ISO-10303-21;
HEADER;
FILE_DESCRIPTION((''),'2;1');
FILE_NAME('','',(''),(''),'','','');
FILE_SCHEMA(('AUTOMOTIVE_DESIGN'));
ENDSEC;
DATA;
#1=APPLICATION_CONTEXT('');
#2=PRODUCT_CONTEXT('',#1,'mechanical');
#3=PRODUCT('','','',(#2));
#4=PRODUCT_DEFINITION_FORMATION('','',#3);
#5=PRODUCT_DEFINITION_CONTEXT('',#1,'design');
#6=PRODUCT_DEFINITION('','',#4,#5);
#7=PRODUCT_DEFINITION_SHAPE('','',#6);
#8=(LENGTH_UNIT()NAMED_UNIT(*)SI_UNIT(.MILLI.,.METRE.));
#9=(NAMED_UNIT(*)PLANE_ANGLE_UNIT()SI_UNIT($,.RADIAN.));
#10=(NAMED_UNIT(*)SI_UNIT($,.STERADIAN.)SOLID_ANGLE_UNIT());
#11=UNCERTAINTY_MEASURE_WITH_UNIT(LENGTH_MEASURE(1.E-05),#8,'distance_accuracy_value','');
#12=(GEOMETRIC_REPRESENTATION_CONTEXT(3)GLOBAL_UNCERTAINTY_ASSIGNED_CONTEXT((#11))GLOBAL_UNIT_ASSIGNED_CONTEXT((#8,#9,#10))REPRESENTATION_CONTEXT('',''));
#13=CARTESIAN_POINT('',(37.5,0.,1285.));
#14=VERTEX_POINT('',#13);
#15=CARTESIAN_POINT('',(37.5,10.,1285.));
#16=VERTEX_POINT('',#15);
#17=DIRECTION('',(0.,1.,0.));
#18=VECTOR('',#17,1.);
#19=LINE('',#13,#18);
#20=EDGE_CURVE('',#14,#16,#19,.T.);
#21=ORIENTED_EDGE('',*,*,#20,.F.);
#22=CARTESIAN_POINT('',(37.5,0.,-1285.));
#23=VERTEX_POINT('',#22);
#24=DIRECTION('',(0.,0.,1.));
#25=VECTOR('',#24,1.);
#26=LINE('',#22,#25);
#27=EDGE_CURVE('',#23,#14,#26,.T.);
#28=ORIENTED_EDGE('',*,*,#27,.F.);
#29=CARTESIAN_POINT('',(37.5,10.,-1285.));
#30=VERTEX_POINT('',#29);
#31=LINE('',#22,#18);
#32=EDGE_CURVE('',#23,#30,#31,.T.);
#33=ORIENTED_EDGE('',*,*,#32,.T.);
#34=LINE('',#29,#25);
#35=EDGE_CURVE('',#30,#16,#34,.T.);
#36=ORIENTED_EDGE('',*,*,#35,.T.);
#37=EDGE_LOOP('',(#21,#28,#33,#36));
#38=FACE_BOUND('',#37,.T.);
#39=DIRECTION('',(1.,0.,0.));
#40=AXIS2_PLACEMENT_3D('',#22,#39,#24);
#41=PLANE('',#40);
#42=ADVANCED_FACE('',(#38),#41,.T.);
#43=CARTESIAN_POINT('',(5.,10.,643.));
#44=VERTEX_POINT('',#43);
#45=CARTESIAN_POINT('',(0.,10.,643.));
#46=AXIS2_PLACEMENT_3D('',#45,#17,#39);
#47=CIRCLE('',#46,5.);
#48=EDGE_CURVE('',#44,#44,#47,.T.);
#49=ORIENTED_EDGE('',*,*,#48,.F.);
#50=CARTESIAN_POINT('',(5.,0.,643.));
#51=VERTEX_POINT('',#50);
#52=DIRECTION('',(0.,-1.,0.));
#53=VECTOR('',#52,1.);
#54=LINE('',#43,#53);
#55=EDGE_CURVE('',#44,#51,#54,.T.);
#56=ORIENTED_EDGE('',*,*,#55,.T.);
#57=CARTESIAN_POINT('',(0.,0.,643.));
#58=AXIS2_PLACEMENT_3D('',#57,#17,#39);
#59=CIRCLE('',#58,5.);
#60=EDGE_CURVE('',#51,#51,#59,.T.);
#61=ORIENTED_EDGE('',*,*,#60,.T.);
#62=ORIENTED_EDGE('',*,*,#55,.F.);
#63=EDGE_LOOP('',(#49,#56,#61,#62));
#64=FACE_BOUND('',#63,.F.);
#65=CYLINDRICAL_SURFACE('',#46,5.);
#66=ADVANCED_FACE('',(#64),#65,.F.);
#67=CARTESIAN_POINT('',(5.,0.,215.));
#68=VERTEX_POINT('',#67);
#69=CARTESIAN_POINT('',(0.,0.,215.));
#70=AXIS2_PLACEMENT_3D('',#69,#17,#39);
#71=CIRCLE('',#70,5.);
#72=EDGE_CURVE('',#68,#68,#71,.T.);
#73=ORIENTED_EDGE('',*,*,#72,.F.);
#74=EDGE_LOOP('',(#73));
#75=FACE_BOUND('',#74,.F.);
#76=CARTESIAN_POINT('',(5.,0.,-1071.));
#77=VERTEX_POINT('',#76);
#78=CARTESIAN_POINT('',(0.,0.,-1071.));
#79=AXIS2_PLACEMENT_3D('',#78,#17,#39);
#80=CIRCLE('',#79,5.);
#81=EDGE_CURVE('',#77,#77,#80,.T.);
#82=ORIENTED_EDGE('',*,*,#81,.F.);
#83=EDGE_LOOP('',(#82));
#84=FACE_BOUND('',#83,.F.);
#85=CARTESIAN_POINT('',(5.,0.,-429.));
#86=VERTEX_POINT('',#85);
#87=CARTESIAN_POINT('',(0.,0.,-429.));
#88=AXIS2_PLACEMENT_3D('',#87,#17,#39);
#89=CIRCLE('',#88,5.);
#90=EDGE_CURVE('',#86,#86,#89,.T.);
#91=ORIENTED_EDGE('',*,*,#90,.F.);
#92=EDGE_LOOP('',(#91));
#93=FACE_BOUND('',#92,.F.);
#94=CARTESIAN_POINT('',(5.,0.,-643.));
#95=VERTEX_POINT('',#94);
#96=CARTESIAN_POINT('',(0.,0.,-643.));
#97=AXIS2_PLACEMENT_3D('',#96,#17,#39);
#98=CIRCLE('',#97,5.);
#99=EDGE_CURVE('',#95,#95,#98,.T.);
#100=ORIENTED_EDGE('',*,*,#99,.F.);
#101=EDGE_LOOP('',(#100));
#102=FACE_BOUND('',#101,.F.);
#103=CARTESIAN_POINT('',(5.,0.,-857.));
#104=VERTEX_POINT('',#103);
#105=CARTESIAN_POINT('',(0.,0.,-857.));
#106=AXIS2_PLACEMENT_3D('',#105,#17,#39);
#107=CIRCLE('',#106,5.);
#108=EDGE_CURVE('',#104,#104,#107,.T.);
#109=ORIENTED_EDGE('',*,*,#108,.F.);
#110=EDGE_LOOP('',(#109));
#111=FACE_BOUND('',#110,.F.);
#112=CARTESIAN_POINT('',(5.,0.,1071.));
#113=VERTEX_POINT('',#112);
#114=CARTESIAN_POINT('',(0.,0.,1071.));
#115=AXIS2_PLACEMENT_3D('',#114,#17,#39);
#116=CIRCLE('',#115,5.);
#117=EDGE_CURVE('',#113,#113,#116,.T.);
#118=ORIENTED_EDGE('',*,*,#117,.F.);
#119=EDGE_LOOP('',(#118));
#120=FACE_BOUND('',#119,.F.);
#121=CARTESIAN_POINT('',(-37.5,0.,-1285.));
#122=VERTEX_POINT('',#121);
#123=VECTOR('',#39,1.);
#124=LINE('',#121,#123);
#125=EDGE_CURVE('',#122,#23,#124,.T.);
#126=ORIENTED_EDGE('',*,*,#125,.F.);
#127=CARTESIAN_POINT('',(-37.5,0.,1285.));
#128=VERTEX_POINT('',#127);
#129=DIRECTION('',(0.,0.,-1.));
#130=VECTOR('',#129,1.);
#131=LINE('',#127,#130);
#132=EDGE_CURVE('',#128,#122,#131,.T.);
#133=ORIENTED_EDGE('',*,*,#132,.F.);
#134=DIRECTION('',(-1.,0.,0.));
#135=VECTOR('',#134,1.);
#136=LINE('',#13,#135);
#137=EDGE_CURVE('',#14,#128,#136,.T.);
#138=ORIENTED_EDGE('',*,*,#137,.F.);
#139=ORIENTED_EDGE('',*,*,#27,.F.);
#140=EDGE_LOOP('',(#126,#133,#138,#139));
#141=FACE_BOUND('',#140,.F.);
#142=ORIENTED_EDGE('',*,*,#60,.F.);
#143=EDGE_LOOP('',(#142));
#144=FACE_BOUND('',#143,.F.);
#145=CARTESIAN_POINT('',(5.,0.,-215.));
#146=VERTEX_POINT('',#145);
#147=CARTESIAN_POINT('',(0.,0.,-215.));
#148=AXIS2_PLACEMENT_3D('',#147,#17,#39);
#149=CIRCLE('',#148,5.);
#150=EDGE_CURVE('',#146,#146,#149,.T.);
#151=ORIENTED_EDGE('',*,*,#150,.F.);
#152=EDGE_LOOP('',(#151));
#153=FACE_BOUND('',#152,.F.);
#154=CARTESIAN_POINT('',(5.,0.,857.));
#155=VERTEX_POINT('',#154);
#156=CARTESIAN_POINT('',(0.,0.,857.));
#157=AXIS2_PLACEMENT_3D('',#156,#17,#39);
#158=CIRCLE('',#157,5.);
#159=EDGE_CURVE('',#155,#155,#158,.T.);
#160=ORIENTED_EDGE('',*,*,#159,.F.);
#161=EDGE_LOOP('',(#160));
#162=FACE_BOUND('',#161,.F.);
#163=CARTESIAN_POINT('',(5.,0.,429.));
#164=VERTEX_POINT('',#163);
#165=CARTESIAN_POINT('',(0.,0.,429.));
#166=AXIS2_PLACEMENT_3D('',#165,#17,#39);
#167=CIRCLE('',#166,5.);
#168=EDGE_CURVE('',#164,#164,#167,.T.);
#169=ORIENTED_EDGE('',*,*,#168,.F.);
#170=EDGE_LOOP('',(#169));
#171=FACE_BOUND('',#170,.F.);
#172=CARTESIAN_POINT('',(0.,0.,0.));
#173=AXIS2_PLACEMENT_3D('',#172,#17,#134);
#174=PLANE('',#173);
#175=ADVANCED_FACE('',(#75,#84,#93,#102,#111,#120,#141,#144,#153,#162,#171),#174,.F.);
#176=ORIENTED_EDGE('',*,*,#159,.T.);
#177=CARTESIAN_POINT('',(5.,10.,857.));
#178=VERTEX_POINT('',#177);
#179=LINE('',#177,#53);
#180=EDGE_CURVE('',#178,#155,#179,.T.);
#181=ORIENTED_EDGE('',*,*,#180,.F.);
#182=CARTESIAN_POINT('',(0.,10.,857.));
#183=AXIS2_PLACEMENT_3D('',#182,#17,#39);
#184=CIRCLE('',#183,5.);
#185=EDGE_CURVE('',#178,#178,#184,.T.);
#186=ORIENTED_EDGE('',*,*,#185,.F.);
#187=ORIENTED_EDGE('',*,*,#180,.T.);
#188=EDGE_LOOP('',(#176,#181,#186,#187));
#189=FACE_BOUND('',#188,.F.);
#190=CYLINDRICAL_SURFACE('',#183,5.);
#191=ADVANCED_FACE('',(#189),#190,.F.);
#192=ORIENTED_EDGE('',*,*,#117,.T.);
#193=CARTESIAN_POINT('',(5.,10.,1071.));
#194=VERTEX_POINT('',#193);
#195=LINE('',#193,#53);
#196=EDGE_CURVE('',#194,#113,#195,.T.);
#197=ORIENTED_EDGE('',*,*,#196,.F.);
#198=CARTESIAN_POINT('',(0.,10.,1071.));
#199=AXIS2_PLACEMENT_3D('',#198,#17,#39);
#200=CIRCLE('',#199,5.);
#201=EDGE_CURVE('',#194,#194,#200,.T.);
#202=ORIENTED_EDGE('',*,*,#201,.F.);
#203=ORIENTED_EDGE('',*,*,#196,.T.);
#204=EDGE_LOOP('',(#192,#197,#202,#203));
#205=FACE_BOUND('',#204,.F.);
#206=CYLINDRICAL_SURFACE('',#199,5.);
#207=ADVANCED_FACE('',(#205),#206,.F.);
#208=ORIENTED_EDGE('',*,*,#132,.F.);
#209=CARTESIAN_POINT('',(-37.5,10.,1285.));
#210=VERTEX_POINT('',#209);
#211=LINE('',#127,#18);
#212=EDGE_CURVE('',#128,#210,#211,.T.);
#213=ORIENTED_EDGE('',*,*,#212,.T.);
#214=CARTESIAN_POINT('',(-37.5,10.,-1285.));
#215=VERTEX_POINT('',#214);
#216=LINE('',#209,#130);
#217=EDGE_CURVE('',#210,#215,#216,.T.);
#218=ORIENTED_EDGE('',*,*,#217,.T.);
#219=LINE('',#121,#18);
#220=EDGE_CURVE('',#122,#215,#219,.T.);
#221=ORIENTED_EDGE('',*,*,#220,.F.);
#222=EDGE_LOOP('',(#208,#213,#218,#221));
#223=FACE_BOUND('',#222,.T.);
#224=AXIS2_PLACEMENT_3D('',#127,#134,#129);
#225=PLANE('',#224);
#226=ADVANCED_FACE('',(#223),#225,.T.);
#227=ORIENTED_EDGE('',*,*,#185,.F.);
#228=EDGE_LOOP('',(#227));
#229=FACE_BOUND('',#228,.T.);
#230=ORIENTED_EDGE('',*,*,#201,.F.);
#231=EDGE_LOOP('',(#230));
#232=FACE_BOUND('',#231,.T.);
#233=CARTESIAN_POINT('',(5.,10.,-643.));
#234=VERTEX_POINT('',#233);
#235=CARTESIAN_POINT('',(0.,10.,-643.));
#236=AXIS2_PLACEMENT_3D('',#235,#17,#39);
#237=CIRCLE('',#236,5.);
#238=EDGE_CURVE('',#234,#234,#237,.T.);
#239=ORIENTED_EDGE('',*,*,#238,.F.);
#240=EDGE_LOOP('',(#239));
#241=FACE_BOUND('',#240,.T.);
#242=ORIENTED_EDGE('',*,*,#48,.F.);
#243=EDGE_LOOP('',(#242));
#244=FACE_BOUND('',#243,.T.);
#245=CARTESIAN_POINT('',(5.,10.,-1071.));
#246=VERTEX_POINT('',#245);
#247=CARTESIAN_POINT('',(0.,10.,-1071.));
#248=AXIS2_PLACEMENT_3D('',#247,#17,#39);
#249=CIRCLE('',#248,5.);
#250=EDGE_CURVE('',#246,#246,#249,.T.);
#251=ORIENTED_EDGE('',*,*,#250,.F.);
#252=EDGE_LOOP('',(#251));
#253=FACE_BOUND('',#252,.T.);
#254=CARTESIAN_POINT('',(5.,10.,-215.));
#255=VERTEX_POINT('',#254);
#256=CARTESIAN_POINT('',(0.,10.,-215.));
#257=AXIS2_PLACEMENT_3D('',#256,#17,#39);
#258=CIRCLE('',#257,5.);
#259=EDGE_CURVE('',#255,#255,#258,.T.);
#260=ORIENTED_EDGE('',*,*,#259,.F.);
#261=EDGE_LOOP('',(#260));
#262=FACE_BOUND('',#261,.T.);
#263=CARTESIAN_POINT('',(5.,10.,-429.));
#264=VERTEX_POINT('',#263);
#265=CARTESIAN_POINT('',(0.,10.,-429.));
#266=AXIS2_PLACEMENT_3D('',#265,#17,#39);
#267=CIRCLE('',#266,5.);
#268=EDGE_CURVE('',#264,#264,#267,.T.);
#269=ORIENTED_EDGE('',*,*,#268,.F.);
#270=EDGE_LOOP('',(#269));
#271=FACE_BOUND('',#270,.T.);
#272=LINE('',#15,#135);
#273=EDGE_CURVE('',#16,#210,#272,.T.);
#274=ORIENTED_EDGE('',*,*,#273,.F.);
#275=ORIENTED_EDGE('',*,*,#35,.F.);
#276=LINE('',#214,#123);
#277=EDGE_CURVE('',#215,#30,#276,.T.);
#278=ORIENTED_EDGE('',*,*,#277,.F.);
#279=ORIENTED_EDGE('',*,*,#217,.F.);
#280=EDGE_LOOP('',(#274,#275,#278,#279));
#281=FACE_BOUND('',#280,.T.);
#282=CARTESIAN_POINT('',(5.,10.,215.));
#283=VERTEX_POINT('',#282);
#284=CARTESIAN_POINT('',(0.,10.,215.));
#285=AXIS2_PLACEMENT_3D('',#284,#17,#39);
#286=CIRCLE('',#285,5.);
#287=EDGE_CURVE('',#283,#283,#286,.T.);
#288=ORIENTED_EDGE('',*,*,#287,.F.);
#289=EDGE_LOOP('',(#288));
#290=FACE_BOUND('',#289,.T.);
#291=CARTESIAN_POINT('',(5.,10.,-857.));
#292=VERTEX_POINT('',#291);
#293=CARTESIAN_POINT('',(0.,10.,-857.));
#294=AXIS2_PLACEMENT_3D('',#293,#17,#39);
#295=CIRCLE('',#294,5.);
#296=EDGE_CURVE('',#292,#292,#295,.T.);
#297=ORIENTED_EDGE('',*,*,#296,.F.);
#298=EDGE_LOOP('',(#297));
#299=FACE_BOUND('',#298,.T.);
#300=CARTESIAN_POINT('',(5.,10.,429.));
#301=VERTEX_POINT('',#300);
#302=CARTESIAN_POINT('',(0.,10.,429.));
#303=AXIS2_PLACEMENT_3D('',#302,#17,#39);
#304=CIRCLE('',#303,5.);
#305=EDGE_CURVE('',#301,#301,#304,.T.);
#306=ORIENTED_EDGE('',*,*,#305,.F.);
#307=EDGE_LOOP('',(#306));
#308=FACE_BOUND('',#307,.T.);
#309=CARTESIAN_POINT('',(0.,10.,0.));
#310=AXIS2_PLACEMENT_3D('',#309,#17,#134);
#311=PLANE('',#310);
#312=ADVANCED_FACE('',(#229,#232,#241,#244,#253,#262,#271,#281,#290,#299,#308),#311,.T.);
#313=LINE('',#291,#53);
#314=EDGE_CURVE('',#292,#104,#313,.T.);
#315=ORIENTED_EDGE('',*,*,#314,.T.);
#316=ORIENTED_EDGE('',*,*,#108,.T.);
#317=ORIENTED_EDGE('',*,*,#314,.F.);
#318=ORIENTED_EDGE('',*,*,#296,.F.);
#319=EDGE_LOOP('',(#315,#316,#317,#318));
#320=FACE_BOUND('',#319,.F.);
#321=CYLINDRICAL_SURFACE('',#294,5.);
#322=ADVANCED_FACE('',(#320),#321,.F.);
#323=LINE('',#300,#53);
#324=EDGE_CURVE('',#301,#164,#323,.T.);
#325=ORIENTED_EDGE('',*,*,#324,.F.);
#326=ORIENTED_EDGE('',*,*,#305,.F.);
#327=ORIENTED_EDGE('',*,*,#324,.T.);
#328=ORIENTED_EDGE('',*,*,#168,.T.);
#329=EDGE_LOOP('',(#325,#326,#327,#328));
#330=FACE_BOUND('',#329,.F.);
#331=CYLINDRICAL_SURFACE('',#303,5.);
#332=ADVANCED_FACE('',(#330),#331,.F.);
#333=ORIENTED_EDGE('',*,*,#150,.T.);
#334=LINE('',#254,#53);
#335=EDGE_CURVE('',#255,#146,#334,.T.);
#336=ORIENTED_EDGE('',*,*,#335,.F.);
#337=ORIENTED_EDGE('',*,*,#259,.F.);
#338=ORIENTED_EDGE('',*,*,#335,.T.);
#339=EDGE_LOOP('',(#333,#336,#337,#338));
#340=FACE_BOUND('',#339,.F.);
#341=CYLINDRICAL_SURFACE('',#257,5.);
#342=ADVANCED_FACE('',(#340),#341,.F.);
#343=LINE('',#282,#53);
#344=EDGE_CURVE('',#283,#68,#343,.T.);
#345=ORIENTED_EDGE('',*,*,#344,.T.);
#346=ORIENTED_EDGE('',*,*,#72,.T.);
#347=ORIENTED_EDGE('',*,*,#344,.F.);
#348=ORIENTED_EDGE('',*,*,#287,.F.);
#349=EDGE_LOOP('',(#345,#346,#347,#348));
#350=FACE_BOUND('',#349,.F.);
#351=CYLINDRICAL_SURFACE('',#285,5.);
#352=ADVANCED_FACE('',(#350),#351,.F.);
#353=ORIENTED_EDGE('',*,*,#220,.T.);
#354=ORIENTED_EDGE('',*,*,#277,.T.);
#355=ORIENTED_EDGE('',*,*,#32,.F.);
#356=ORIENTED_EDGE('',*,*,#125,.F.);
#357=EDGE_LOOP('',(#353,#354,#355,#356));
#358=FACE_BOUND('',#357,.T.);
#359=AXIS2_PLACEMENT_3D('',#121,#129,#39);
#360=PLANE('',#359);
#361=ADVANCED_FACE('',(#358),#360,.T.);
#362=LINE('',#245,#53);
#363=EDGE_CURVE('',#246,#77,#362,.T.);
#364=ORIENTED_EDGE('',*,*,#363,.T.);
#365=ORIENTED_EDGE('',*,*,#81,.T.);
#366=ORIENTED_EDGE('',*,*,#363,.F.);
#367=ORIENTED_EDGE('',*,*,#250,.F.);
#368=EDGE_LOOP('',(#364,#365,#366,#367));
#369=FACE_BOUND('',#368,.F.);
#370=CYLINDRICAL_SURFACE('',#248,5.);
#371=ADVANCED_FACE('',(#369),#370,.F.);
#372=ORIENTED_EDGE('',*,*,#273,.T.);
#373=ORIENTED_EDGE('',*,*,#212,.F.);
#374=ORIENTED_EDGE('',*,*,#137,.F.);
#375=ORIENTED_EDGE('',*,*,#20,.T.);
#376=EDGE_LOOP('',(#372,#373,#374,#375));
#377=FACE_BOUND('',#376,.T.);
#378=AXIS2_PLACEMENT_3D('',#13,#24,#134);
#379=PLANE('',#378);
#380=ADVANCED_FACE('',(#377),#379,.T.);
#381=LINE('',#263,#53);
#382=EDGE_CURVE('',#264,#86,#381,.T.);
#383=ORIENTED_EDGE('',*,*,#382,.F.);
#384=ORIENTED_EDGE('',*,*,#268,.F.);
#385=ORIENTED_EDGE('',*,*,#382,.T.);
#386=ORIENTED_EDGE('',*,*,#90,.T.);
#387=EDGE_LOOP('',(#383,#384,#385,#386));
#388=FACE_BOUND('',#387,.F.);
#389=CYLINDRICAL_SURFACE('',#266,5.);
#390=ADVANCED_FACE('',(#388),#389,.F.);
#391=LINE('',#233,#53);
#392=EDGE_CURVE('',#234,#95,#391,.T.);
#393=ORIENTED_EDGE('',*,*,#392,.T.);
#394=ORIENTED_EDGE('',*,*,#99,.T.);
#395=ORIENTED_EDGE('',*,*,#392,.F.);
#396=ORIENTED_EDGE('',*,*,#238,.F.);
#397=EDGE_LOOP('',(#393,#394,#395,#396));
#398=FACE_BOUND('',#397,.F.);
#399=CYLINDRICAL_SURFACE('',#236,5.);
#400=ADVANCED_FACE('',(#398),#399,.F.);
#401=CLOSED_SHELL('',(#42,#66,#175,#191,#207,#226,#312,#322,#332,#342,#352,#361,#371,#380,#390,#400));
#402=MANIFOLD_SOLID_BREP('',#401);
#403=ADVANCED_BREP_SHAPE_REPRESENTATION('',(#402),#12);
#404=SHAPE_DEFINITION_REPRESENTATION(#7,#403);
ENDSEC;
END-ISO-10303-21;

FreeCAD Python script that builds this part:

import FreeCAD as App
import Part
import Sketcher
Q = App.Units.Quantity

doc = App.newDocument("Part")
body = doc.addObject("PartDesign::Body", "Body")

# Sketch on XZ plane
sketch1 = body.newObject("Sketcher::SketchObject", "Sketch")
sketch1.AttachmentSupport = (doc.getObject("XZ_Plane"), [""])
sketch1.MapMode = "FlatFace"
sketch1.addGeometry(Part.LineSegment(App.Vector(38, 1285, 0), App.Vector(38, -1285, 0)), False)
sketch1.addGeometry(Part.LineSegment(App.Vector(38, -1285, 0), App.Vector(-38, -1285, 0)), False)
sketch1.addGeometry(Part.LineSegment(App.Vector(-38, -1285, 0), App.Vector(-38, 1285, 0)), False)
sketch1.addGeometry(Part.LineSegment(App.Vector(-38, 1285, 0), App.Vector(38, 1285, 0)), False)
sketch1.addConstraint(Sketcher.Constraint("Coincident", 0, 2, 1, 1))
sketch1.addConstraint(Sketcher.Constraint("Coincident", 1, 2, 2, 1))
sketch1.addConstraint(Sketcher.Constraint("Coincident", 2, 2, 3, 1))
sketch1.addConstraint(Sketcher.Constraint("Coincident", 3, 2, 0, 1))
sketch1.addConstraint(Sketcher.Constraint("Vertical", 0))
sketch1.addConstraint(Sketcher.Constraint("Horizontal", 1))
sketch1.addConstraint(Sketcher.Constraint("Vertical", 2))
sketch1.addConstraint(Sketcher.Constraint("Horizontal", 3))
sketch1.addConstraint(Sketcher.Constraint("Symmetric", 0, 2, 2, 2, -1, 1))
sketch1.addConstraint(Sketcher.Constraint("DistanceX", 1, 2, 1, 1, Q("75 mm")))
sketch1.addConstraint(Sketcher.Constraint("DistanceY", 0, 2, 0, 1, Q("2570 mm")))
pad1 = body.newObject("PartDesign::Pad", "Pad")
pad1.Profile = sketch1
pad1.Length = 10
pad1.Reversed = True

# Sketch on XZ plane
sketch2 = body.newObject("Sketcher::SketchObject", "Sketch001")
sketch2.AttachmentSupport = (doc.getObject("XZ_Plane"), [""])
sketch2.MapMode = "FlatFace"
sketch2.AttachmentOffset = App.Placement(App.Vector(0, 0, -10), App.Rotation())
sketch2.addGeometry(Part.Circle(App.Vector(0, 1071, 0), App.Vector(0, 0, 1), 5), False)
sketch2.addGeometry(Part.Circle(App.Vector(0, 857, 0), App.Vector(0, 0, 1), 5), False)
sketch2.addGeometry(Part.Circle(App.Vector(0, 643, 0), App.Vector(0, 0, 1), 5), False)
sketch2.addGeometry(Part.Circle(App.Vector(0, 429, 0), App.Vector(0, 0, 1), 5), False)
sketch2.addGeometry(Part.Circle(App.Vector(0, 215, 0), App.Vector(0, 0, 1), 5), False)
sketch2.addGeometry(Part.Circle(App.Vector(0, -1071, 0), App.Vector(0, 0, 1), 5), False)
sketch2.addGeometry(Part.Circle(App.Vector(0, -857, 0), App.Vector(0, 0, 1), 5), False)
sketch2.addGeometry(Part.Circle(App.Vector(0, -643, 0), App.Vector(0, 0, 1), 5), False)
sketch2.addGeometry(Part.Circle(App.Vector(0, -429, 0), App.Vector(0, 0, 1), 5), False)
sketch2.addGeometry(Part.Circle(App.Vector(0, -215, 0), App.Vector(0, 0, 1), 5), False)
sketch2.addConstraint(Sketcher.Constraint("Equal", 0, 1))
sketch2.addConstraint(Sketcher.Constraint("Equal", 1, 2))
sketch2.addConstraint(Sketcher.Constraint("Equal", 2, 3))
sketch2.addConstraint(Sketcher.Constraint("Equal", 3, 4))
sketch2.addConstraint(Sketcher.Constraint("Equal", 4, 5))
sketch2.addConstraint(Sketcher.Constraint("Equal", 5, 6))
sketch2.addConstraint(Sketcher.Constraint("Equal", 6, 7))
sketch2.addConstraint(Sketcher.Constraint("Equal", 7, 8))
sketch2.addConstraint(Sketcher.Constraint("Equal", 8, 9))
sketch2.addConstraint(Sketcher.Constraint("Symmetric", 0, 3, 5, 3, -1, 1))
sketch2.addConstraint(Sketcher.Constraint("Symmetric", 1, 3, 6, 3, -1, 1))
sketch2.addConstraint(Sketcher.Constraint("Symmetric", 2, 3, 7, 3, -1, 1))
sketch2.addConstraint(Sketcher.Constraint("Symmetric", 3, 3, 8, 3, -1, 1))
sketch2.addConstraint(Sketcher.Constraint("Symmetric", 4, 3, 9, 3, -1, 1))
sketch2.addConstraint(Sketcher.Constraint("PointOnObject", 0, 3, -2))
sketch2.addConstraint(Sketcher.Constraint("PointOnObject", 1, 3, -2))
sketch2.addConstraint(Sketcher.Constraint("PointOnObject", 2, 3, -2))
sketch2.addConstraint(Sketcher.Constraint("PointOnObject", 3, 3, -2))
sketch2.addConstraint(Sketcher.Constraint("PointOnObject", 4, 3, -2))
sketch2.addConstraint(Sketcher.Constraint("Diameter", 0, Q("10 mm")))
sketch2.addConstraint(Sketcher.Constraint("DistanceY", -1, 1, 4, 3, Q("215 mm")))
sketch2.addConstraint(Sketcher.Constraint("DistanceY", 1, 3, 0, 3, Q("214 mm")))
sketch2.addConstraint(Sketcher.Constraint("DistanceY", 2, 3, 1, 3, Q("214 mm")))
sketch2.addConstraint(Sketcher.Constraint("DistanceY", 3, 3, 2, 3, Q("214 mm")))
sketch2.addConstraint(Sketcher.Constraint("DistanceY", 4, 3, 3, 3, Q("214 mm")))
pocket1 = body.newObject("PartDesign::Pocket", "Pocket")
pocket1.Profile = sketch2
pocket1.Length = 10
pocket1.Reversed = True

doc.recompute()
